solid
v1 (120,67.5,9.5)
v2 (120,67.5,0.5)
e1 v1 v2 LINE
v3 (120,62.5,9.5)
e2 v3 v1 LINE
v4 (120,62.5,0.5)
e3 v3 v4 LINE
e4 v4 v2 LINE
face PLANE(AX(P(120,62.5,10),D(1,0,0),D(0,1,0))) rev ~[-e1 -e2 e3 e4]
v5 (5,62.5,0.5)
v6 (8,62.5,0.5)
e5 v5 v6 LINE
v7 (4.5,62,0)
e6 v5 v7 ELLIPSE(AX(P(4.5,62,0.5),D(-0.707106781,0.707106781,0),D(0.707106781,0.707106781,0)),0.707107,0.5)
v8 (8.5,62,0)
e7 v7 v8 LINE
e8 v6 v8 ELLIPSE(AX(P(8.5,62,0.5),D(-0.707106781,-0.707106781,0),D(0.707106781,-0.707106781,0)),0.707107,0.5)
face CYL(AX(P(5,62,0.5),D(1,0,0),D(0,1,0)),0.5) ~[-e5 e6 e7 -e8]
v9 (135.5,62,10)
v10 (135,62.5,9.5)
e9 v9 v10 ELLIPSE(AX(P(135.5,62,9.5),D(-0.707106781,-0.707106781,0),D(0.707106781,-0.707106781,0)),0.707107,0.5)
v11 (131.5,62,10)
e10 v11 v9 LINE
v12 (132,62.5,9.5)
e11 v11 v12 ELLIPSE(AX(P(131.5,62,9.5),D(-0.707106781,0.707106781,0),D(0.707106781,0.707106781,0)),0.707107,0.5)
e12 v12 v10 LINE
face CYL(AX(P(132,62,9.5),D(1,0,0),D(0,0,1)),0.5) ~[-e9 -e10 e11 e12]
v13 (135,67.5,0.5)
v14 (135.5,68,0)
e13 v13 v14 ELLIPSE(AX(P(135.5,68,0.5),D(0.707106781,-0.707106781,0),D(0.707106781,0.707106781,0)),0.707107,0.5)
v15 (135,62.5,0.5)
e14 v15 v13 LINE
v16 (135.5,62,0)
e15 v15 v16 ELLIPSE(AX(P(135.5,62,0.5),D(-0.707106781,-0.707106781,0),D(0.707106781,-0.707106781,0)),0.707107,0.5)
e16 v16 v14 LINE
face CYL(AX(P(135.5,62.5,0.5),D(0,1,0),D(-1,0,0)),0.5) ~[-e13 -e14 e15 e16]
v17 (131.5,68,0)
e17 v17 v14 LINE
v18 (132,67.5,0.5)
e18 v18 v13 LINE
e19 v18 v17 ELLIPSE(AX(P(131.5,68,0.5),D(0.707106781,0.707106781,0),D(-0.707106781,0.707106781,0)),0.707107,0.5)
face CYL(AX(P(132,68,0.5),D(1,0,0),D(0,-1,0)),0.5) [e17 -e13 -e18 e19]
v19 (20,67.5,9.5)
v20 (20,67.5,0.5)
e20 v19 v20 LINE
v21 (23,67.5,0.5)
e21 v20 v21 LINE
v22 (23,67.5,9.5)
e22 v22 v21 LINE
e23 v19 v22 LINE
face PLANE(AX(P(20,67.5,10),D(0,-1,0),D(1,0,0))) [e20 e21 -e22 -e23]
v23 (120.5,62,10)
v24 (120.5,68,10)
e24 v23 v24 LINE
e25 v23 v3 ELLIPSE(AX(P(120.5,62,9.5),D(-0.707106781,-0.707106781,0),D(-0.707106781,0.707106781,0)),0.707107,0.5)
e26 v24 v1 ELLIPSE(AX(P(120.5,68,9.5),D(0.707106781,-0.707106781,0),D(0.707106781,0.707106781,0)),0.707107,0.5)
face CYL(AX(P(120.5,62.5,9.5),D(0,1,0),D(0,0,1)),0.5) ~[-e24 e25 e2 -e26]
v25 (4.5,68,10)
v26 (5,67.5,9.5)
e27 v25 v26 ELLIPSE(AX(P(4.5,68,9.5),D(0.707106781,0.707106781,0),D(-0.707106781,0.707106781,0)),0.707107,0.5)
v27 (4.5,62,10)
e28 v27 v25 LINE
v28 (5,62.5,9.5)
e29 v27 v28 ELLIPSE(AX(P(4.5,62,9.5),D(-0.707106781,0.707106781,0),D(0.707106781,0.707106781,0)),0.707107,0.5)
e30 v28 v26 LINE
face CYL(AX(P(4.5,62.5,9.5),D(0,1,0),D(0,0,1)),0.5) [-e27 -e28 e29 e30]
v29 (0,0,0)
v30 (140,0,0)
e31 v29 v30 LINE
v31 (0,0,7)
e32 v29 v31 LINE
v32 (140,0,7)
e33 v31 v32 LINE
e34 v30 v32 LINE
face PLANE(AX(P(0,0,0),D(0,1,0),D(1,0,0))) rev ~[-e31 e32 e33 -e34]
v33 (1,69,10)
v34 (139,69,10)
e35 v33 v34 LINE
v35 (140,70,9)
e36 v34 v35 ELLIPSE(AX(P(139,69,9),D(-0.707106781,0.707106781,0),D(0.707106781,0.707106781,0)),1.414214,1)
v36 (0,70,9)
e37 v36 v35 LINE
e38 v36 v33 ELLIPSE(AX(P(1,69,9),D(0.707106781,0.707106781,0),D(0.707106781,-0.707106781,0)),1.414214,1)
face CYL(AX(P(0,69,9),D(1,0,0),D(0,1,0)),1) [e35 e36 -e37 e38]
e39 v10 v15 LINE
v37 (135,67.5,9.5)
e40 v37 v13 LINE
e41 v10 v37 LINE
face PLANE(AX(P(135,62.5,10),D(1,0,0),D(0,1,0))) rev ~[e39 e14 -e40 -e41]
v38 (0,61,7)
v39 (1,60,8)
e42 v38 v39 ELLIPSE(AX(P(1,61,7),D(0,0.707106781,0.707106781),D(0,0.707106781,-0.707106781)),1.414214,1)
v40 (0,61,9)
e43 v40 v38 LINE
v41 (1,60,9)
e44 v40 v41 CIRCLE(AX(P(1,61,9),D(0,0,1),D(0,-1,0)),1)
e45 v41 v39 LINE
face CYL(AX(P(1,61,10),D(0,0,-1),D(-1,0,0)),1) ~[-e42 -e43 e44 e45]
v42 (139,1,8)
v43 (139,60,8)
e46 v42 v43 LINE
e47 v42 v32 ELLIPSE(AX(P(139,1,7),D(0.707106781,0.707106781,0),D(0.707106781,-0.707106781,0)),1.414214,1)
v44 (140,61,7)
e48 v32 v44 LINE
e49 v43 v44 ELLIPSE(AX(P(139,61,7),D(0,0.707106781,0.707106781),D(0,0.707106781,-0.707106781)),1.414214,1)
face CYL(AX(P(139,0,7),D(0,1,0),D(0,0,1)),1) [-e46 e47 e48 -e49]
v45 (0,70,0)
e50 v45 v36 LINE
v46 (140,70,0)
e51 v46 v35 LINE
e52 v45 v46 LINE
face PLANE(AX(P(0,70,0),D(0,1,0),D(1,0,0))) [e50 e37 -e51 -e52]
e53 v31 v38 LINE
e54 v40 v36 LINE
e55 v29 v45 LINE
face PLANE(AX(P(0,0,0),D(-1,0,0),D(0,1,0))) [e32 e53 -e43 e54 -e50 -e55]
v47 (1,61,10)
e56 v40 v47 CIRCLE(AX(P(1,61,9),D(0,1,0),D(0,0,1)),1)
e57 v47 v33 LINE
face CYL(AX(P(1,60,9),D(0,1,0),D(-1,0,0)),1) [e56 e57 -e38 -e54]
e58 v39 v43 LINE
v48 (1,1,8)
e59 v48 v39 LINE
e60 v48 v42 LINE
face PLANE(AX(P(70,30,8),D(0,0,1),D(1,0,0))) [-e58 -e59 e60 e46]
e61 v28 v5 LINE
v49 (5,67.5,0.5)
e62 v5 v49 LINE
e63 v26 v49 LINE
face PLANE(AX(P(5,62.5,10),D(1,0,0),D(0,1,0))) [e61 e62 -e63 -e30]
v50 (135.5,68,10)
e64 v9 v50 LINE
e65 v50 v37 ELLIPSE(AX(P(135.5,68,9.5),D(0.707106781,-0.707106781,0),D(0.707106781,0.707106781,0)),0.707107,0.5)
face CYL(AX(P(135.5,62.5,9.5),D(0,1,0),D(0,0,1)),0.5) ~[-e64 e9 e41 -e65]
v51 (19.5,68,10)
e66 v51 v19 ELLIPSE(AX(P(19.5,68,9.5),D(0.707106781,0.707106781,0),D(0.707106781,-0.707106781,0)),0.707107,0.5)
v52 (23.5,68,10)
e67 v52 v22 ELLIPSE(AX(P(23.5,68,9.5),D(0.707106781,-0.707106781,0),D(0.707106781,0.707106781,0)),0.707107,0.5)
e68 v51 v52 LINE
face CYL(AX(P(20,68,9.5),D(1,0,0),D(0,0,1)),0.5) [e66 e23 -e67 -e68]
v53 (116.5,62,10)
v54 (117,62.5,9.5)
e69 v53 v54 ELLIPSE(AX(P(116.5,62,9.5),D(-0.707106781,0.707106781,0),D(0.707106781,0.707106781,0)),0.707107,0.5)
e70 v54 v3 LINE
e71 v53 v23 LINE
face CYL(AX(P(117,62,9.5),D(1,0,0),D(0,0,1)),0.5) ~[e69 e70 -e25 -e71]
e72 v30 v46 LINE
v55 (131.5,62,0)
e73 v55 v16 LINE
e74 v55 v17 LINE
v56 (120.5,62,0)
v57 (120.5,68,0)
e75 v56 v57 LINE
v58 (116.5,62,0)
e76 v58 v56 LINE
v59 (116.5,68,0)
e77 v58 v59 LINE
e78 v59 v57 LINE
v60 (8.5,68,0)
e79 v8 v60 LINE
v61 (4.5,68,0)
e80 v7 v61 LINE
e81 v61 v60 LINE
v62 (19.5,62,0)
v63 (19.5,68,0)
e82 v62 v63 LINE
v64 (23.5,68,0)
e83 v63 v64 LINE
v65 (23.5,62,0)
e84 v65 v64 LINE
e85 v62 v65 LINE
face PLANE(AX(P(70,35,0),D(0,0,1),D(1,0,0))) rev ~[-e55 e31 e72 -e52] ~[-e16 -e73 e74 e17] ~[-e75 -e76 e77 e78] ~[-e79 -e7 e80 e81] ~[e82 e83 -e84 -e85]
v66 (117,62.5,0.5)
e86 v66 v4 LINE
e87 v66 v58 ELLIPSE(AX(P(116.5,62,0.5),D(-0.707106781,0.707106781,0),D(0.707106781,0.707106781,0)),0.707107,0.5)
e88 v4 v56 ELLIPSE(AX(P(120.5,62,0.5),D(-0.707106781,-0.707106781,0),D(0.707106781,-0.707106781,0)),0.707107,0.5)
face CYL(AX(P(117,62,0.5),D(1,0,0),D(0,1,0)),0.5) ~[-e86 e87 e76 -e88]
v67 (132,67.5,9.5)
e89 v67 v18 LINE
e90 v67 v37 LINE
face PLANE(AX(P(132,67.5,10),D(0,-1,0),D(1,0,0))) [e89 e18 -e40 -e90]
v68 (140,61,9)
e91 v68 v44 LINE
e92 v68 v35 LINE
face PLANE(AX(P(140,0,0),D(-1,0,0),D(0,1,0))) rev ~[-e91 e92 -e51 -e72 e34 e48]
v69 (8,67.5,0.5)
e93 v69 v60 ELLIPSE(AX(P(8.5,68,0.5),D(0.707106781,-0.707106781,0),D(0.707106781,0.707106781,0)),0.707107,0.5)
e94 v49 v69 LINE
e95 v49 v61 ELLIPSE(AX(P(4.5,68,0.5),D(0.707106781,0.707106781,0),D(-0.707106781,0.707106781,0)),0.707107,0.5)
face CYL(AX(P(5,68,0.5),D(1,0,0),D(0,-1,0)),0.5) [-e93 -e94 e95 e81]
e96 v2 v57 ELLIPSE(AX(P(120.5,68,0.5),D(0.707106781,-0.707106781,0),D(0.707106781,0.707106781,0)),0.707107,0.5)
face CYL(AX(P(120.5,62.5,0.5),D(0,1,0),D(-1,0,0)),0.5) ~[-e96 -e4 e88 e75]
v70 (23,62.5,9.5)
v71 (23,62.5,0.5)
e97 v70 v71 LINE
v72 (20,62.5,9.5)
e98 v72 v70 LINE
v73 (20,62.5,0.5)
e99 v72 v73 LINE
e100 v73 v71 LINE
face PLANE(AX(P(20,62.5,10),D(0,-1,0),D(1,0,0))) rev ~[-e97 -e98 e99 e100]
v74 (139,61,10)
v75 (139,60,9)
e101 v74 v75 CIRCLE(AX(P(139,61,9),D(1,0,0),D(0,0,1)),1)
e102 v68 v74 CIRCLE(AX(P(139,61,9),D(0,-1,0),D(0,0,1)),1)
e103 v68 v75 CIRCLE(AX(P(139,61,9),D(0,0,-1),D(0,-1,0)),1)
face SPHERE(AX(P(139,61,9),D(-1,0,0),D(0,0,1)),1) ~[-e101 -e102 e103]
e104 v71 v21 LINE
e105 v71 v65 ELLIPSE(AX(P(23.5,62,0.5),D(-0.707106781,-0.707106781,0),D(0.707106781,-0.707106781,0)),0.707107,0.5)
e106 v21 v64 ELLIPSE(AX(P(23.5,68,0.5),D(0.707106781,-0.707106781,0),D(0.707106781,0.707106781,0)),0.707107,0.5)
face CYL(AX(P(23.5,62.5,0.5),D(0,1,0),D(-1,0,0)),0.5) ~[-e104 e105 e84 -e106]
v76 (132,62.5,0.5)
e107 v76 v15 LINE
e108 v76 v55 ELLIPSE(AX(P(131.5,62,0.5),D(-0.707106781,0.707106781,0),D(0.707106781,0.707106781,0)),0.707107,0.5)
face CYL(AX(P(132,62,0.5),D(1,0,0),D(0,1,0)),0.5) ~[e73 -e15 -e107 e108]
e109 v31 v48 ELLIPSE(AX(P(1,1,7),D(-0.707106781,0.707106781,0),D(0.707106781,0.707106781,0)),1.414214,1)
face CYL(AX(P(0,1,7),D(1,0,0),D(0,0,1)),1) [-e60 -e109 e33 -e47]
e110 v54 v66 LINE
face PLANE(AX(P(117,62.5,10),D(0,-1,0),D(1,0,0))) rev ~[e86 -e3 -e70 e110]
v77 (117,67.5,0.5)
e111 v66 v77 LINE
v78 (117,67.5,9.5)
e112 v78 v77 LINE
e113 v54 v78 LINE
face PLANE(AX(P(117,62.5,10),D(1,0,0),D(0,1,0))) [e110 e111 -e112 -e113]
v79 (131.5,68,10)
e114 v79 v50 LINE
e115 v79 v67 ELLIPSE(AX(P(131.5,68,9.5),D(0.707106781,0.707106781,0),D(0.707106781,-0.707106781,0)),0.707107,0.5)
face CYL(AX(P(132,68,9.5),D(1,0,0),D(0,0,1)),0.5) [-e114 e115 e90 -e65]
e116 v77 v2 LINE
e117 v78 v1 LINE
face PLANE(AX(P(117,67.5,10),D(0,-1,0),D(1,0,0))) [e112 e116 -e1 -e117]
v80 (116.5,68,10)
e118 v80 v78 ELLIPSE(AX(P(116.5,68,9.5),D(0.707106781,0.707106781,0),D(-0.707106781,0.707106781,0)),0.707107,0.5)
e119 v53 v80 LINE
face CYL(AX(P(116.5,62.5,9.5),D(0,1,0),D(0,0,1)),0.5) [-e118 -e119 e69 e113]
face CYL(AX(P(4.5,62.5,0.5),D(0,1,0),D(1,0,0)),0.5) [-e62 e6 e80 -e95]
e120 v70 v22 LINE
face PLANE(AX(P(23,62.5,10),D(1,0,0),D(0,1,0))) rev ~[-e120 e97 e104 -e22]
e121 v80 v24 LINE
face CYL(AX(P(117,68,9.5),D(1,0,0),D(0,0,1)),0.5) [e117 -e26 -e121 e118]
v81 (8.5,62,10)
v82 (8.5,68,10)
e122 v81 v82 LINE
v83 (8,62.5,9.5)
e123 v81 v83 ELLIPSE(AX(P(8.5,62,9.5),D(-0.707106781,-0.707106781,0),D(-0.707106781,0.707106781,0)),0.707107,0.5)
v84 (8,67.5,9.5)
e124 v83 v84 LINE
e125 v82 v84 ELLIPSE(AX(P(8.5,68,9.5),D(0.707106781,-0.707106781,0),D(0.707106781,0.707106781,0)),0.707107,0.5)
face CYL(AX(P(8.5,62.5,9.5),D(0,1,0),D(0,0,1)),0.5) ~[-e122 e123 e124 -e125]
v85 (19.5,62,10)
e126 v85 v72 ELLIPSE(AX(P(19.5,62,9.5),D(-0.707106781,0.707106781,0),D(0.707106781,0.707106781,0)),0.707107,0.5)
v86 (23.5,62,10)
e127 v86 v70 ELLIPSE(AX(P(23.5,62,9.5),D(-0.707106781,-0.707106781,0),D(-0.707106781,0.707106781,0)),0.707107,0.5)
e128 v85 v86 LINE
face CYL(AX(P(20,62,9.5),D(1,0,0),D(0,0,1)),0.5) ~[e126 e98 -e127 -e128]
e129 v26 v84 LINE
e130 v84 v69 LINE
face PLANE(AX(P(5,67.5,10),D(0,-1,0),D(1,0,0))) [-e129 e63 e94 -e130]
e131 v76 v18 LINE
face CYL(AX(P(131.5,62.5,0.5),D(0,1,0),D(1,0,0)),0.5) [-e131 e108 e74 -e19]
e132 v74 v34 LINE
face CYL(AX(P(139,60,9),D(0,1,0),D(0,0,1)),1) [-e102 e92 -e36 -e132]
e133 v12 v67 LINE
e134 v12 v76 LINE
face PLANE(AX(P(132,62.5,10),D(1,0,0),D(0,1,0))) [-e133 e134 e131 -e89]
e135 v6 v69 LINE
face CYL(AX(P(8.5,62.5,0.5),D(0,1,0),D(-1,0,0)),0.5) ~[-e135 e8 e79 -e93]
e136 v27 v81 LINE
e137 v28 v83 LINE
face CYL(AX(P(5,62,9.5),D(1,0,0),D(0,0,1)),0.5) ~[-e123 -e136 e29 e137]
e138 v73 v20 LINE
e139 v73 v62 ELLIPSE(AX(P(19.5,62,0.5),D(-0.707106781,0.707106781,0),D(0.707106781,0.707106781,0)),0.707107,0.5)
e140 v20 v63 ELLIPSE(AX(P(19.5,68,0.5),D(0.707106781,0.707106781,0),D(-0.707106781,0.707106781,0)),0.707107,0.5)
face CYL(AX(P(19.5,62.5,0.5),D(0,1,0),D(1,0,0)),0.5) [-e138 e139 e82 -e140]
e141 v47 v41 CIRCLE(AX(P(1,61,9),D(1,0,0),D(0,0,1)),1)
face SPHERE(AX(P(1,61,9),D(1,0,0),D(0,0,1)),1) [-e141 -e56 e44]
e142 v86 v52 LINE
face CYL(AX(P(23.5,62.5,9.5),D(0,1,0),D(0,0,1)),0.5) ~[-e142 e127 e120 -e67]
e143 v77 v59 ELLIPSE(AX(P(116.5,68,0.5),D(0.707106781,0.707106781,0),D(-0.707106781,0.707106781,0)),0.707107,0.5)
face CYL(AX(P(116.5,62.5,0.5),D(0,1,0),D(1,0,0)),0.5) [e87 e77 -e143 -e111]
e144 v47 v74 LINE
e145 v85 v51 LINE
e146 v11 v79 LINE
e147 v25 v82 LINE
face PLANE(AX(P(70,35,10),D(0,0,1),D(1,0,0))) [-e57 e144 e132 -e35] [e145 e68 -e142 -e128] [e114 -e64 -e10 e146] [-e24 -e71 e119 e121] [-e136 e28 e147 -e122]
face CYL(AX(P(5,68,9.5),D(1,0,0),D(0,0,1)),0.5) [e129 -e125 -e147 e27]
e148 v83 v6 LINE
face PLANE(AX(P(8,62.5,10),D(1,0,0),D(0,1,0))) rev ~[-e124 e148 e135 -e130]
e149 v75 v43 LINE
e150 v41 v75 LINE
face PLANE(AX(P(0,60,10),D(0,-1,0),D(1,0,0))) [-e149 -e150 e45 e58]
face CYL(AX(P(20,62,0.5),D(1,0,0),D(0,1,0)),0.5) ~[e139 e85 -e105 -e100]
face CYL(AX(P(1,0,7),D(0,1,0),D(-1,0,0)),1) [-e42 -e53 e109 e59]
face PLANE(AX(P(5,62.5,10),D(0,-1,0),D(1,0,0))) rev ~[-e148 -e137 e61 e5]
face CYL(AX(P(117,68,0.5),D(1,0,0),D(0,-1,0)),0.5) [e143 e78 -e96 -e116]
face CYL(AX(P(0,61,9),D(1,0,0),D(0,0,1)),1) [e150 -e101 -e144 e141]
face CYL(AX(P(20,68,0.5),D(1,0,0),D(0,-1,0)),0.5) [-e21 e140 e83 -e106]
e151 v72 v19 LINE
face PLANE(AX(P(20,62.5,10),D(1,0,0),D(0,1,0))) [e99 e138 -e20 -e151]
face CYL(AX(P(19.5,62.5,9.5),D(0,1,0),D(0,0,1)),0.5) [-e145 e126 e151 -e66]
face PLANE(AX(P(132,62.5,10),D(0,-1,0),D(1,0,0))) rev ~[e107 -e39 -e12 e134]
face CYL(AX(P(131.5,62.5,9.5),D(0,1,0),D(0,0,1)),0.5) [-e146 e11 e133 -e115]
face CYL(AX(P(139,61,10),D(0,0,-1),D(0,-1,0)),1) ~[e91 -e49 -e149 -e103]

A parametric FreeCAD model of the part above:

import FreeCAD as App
import Part
import Sketcher
Q = App.Units.Quantity


def edges_at(feature, points):
    """Names of the edges that pass closest to the given points."""
    edges = feature.Shape.Edges
    near = lambda p: min(range(len(edges)), key=lambda i: edges[i].distToShape(Part.Vertex(*p))[0])
    return sorted({f"Edge{near(p) + 1}" for p in points})

doc = App.newDocument("Part")
body = doc.addObject("PartDesign::Body", "Body")

sketch1 = doc.addObject("Sketcher::SketchObject", "Sketch")
body.addObject(sketch1)
sketch1.AttachmentSupport = (doc.XY_Plane, [""])
sketch1.MapMode = "FlatFace"
sketch1.addGeometry([
    Part.LineSegment(App.Vector(0, 70, 0), App.Vector(0, 0, 0)),
    Part.LineSegment(App.Vector(0, 0, 0), App.Vector(140, 0, 0)),
    Part.LineSegment(App.Vector(140, 0, 0), App.Vector(140, 70, 0)),
    Part.LineSegment(App.Vector(140, 70, 0), App.Vector(0, 70, 0)),
], False)
sketch1.addConstraint([
    Sketcher.Constraint("Coincident", 0, 2, 1, 1),
    Sketcher.Constraint("Coincident", 1, 2, 2, 1),
    Sketcher.Constraint("Coincident", 2, 2, 3, 1),
    Sketcher.Constraint("Coincident", 3, 2, 0, 1),
    Sketcher.Constraint("Vertical", 0),
    Sketcher.Constraint("Horizontal", 1),
    Sketcher.Constraint("Vertical", 2),
    Sketcher.Constraint("Horizontal", 3),
    Sketcher.Constraint("Coincident", 0, 2, -1, 1),
    Sketcher.Constraint("DistanceX", 1, 1, 1, 2, Q("140 mm")),
    Sketcher.Constraint("DistanceY", 0, 2, 0, 1, Q("70 mm")),
])
pad1 = doc.addObject("PartDesign::Pad", "Pad")
body.addObject(pad1)
pad1.Profile = sketch1
pad1.Length = 10

sketch2 = doc.addObject("Sketcher::SketchObject", "Sketch001")
body.addObject(sketch2)
sketch2.AttachmentSupport = (doc.XY_Plane, [""])
sketch2.MapMode = "FlatFace"
sketch2.AttachmentOffset = App.Placement(App.Vector(0, 0, 10), App.Rotation())
sketch2.addGeometry([
    Part.LineSegment(App.Vector(0, 60, 0), App.Vector(0, 0, 0)),
    Part.LineSegment(App.Vector(0, 0, 0), App.Vector(140, 0, 0)),
    Part.LineSegment(App.Vector(140, 0, 0), App.Vector(140, 60, 0)),
    Part.LineSegment(App.Vector(140, 60, 0), App.Vector(0, 60, 0)),
], False)
sketch2.addConstraint([
    Sketcher.Constraint("Coincident", 0, 2, 1, 1),
    Sketcher.Constraint("Coincident", 1, 2, 2, 1),
    Sketcher.Constraint("Coincident", 2, 2, 3, 1),
    Sketcher.Constraint("Coincident", 3, 2, 0, 1),
    Sketcher.Constraint("Vertical", 0),
    Sketcher.Constraint("Horizontal", 1),
    Sketcher.Constraint("Vertical", 2),
    Sketcher.Constraint("Horizontal", 3),
    Sketcher.Constraint("Coincident", 0, 2, -1, 1),
    Sketcher.Constraint("DistanceX", 1, 1, 1, 2, Q("140 mm")),
    Sketcher.Constraint("DistanceY", 0, 2, 0, 1, Q("60 mm")),
])
pocket1 = doc.addObject("PartDesign::Pocket", "Pocket")
body.addObject(pocket1)
pocket1.Profile = sketch2
pocket1.Length = 2
doc.recompute()

fillet = doc.addObject("PartDesign::Fillet", "Fillet")
body.addObject(fillet)
fillet.Base = (pocket1, edges_at(pocket1, [
    (0, 30, 8),
    (70, 0, 8),
    (140, 30, 8),
    (70, 60, 10),
    (140, 65, 10),
    (70, 70, 10),
    (0, 65, 10),
    (0, 60, 9),
    (140, 60, 9),
]))
fillet.Radius = 1

sketch3 = doc.addObject("Sketcher::SketchObject", "Sketch002")
body.addObject(sketch3)
sketch3.AttachmentSupport = (doc.XY_Plane, [""])
sketch3.MapMode = "FlatFace"
sketch3.AttachmentOffset = App.Placement(App.Vector(0, 0, 10), App.Rotation())
sketch3.addGeometry([
    Part.LineSegment(App.Vector(5, 67.5, 0), App.Vector(5, 62.5, 0)),
    Part.LineSegment(App.Vector(5, 62.5, 0), App.Vector(8, 62.5, 0)),
    Part.LineSegment(App.Vector(8, 62.5, 0), App.Vector(8, 67.5, 0)),
    Part.LineSegment(App.Vector(8, 67.5, 0), App.Vector(5, 67.5, 0)),
    Part.LineSegment(App.Vector(20, 67.5, 0), App.Vector(20, 62.5, 0)),
    Part.LineSegment(App.Vector(20, 62.5, 0), App.Vector(23, 62.5, 0)),
    Part.LineSegment(App.Vector(23, 62.5, 0), App.Vector(23, 67.5, 0)),
    Part.LineSegment(App.Vector(23, 67.5, 0), App.Vector(20, 67.5, 0)),
    Part.LineSegment(App.Vector(117, 67.5, 0), App.Vector(117, 62.5, 0)),
    Part.LineSegment(App.Vector(117, 62.5, 0), App.Vector(120, 62.5, 0)),
    Part.LineSegment(App.Vector(120, 62.5, 0), App.Vector(120, 67.5, 0)),
    Part.LineSegment(App.Vector(120, 67.5, 0), App.Vector(117, 67.5, 0)),
    Part.LineSegment(App.Vector(132, 67.5, 0), App.Vector(132, 62.5, 0)),
    Part.LineSegment(App.Vector(132, 62.5, 0), App.Vector(135, 62.5, 0)),
    Part.LineSegment(App.Vector(135, 62.5, 0), App.Vector(135, 67.5, 0)),
    Part.LineSegment(App.Vector(135, 67.5, 0), App.Vector(132, 67.5, 0)),
], False)
sketch3.addConstraint([
    Sketcher.Constraint("Coincident", 0, 2, 1, 1),
    Sketcher.Constraint("Coincident", 1, 2, 2, 1),
    Sketcher.Constraint("Coincident", 2, 2, 3, 1),
    Sketcher.Constraint("Coincident", 3, 2, 0, 1),
    Sketcher.Constraint("Coincident", 4, 2, 5, 1),
    Sketcher.Constraint("Coincident", 5, 2, 6, 1),
    Sketcher.Constraint("Coincident", 6, 2, 7, 1),
    Sketcher.Constraint("Coincident", 7, 2, 4, 1),
    Sketcher.Constraint("Coincident", 8, 2, 9, 1),
    Sketcher.Constraint("Coincident", 9, 2, 10, 1),
    Sketcher.Constraint("Coincident", 10, 2, 11, 1),
    Sketcher.Constraint("Coincident", 11, 2, 8, 1),
    Sketcher.Constraint("Coincident", 12, 2, 13, 1),
    Sketcher.Constraint("Coincident", 13, 2, 14, 1),
    Sketcher.Constraint("Coincident", 14, 2, 15, 1),
    Sketcher.Constraint("Coincident", 15, 2, 12, 1),
    Sketcher.Constraint("Vertical", 0),
    Sketcher.Constraint("Horizontal", 1),
    Sketcher.Constraint("Vertical", 2),
    Sketcher.Constraint("Horizontal", 3),
    Sketcher.Constraint("Vertical", 4),
    Sketcher.Constraint("Horizontal", 5),
    Sketcher.Constraint("Vertical", 6),
    Sketcher.Constraint("Horizontal", 7),
    Sketcher.Constraint("Vertical", 8),
    Sketcher.Constraint("Horizontal", 9),
    Sketcher.Constraint("Vertical", 10),
    Sketcher.Constraint("Horizontal", 11),
    Sketcher.Constraint("Vertical", 12),
    Sketcher.Constraint("Horizontal", 13),
    Sketcher.Constraint("Vertical", 14),
    Sketcher.Constraint("Horizontal", 15),
    Sketcher.Constraint("Horizontal", 1, 2, 4, 2),
    Sketcher.Constraint("Horizontal", 3, 2, 6, 2),
    Sketcher.Constraint("Horizontal", 5, 2, 8, 2),
    Sketcher.Constraint("Horizontal", 7, 2, 10, 2),
    Sketcher.Constraint("Horizontal", 9, 2, 12, 2),
    Sketcher.Constraint("Horizontal", 11, 2, 14, 2),
    Sketcher.Constraint("Equal", 3, 5),
    Sketcher.Constraint("Equal", 7, 9),
    Sketcher.Constraint("Equal", 11, 13),
    Sketcher.Constraint("DistanceX", 1, 1, 1, 2, Q("3 mm")),
    Sketcher.Constraint("DistanceY", 0, 2, 0, 1, Q("5 mm")),
    Sketcher.Constraint("DistanceX", -1, 1, 0, 2, Q("5 mm")),
    Sketcher.Constraint("DistanceX", -1, 1, 4, 2, Q("20 mm")),
    Sketcher.Constraint("DistanceX", -1, 1, 8, 2, Q("117 mm")),
    Sketcher.Constraint("DistanceX", -1, 1, 12, 2, Q("132 mm")),
    Sketcher.Constraint("DistanceY", -1, 1, 0, 2, Q("62.5 mm")),
])
pocket2 = doc.addObject("PartDesign::Pocket", "Pocket001")
body.addObject(pocket2)
pocket2.Profile = sketch3
pocket2.Type = "ThroughAll"
doc.recompute()

fillet2 = doc.addObject("PartDesign::Fillet", "Fillet001")
body.addObject(fillet2)
fillet2.Base = (pocket2, edges_at(pocket2, [
    (5, 65, 10),
    (6.5, 67.5, 10),
    (8, 65, 10),
    (6.5, 62.5, 10),
    (21.5, 67.5, 10),
    (20, 65, 10),
    (23, 65, 10),
    (21.5, 62.5, 10),
    (117, 65, 10),
    (118.5, 67.5, 10),
    (120, 65, 10),
    (118.5, 62.5, 10),
    (133.5, 67.5, 10),
    (132, 65, 10),
    (133.5, 62.5, 10),
    (135, 65, 10),
]))
fillet2.Radius = 0.5
doc.recompute()

fillet3 = doc.addObject("PartDesign::Fillet", "Fillet002")
body.addObject(fillet3)
fillet3.Base = (fillet2, edges_at(fillet2, [
    (5, 65, 0),
    (6.5, 62.5, 0),
    (8, 65, 0),
    (6.5, 67.5, 0),
    (21.5, 62.5, 0),
    (20, 65, 0),
    (21.5, 67.5, 0),
    (23, 65, 0),
    (117, 65, 0),
    (118.5, 62.5, 0),
    (120, 65, 0),
    (118.5, 67.5, 0),
    (132, 65, 0),
    (133.5, 62.5, 0),
    (135, 65, 0),
    (133.5, 67.5, 0),
]))
fillet3.Radius = 0.5

doc.recompute()
